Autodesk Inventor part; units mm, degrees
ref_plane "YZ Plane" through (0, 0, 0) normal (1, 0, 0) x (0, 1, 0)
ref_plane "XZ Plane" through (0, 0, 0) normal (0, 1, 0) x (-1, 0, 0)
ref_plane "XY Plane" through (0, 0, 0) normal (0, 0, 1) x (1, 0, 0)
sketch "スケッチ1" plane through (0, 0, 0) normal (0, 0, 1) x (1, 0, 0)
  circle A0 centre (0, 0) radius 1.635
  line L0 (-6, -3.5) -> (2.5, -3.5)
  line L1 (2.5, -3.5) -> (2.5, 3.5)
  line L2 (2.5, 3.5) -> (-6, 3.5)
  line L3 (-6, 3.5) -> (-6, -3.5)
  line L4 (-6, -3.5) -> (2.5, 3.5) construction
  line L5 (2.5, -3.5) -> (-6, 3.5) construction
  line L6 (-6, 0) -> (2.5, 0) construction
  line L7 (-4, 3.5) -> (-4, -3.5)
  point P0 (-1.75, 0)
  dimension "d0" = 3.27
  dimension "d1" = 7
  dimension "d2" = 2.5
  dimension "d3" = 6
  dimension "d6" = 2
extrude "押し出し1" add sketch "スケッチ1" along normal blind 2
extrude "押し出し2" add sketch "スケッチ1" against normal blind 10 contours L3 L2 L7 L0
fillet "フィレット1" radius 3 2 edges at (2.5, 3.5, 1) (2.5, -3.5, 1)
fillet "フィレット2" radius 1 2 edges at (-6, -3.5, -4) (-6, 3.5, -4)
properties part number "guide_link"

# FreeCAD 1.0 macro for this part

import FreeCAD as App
import Part
import Sketcher
from FreeCAD import Vector
Q = App.Units.Quantity


def edges_at(feature, points):
    """Names of the edges that pass closest to the given points."""
    edges = feature.Shape.Edges
    near = lambda p: min(range(len(edges)), key=lambda i: edges[i].distToShape(Part.Vertex(*p))[0])
    return sorted({f"Edge{near(p) + 1}" for p in points})

doc = App.newDocument("Part")
body = doc.addObject("PartDesign::Body", "Body")

sketch1 = body.newObject("Sketcher::SketchObject", "Sketch")
sketch1.AttachmentSupport = (doc.getObject("XY_Plane"), [""])
sketch1.MapMode = "FlatFace"
sketch1.addGeometry(Part.LineSegment(Vector(-6, 3.5, 0), Vector(-6, -3.5, 0)), False)
sketch1.addGeometry(Part.LineSegment(Vector(-6, -3.5, 0), Vector(2.5, -3.5, 0)), False)
sketch1.addGeometry(Part.LineSegment(Vector(2.5, -3.5, 0), Vector(2.5, 3.5, 0)), False)
sketch1.addGeometry(Part.LineSegment(Vector(2.5, 3.5, 0), Vector(-6, 3.5, 0)), False)
sketch1.addGeometry(Part.Circle(Vector(0, 0, 0), Vector(0, 0, 1), 1.6), False)
sketch1.addConstraint(Sketcher.Constraint("Coincident", 0, 2, 1, 1))
sketch1.addConstraint(Sketcher.Constraint("Coincident", 1, 2, 2, 1))
sketch1.addConstraint(Sketcher.Constraint("Coincident", 2, 2, 3, 1))
sketch1.addConstraint(Sketcher.Constraint("Coincident", 3, 2, 0, 1))
sketch1.addConstraint(Sketcher.Constraint("Vertical", 0))
sketch1.addConstraint(Sketcher.Constraint("Horizontal", 1))
sketch1.addConstraint(Sketcher.Constraint("Vertical", 2))
sketch1.addConstraint(Sketcher.Constraint("Horizontal", 3))
sketch1.addConstraint(Sketcher.Constraint("Coincident", 4, 3, -1, 1))
sketch1.addConstraint(Sketcher.Constraint("Diameter", 4, Q("3.27 mm")))
sketch1.addConstraint(Sketcher.Constraint("DistanceY", 0, 2, 0, 1, Q("7 mm")))
sketch1.addConstraint(Sketcher.Constraint("DistanceX", 0, 2, -1, 1, Q("6 mm")))
sketch1.addConstraint(Sketcher.Constraint("DistanceX", -1, 1, 1, 2, Q("2.5 mm")))
sketch1.addConstraint(Sketcher.Constraint("DistanceY", 0, 2, -1, 1, Q("3.5 mm")))
pad1 = body.newObject("PartDesign::Pad", "Pad")
pad1.Profile = sketch1
pad1.Length = 2

sketch2 = body.newObject("Sketcher::SketchObject", "Sketch001")
sketch2.AttachmentSupport = (doc.getObject("XY_Plane"), [""])
sketch2.MapMode = "FlatFace"
sketch2.addGeometry(Part.LineSegment(Vector(-6, 3.5, 0), Vector(-6, -3.5, 0)), False)
sketch2.addGeometry(Part.LineSegment(Vector(-6, -3.5, 0), Vector(-4, -3.5, 0)), False)
sketch2.addGeometry(Part.LineSegment(Vector(-4, -3.5, 0), Vector(-4, 3.5, 0)), False)
sketch2.addGeometry(Part.LineSegment(Vector(-4, 3.5, 0), Vector(-6, 3.5, 0)), False)
sketch2.addConstraint(Sketcher.Constraint("Coincident", 0, 2, 1, 1))
sketch2.addConstraint(Sketcher.Constraint("Coincident", 1, 2, 2, 1))
sketch2.addConstraint(Sketcher.Constraint("Coincident", 2, 2, 3, 1))
sketch2.addConstraint(Sketcher.Constraint("Coincident", 3, 2, 0, 1))
sketch2.addConstraint(Sketcher.Constraint("Vertical", 0))
sketch2.addConstraint(Sketcher.Constraint("Horizontal", 1))
sketch2.addConstraint(Sketcher.Constraint("Vertical", 2))
sketch2.addConstraint(Sketcher.Constraint("Horizontal", 3))
sketch2.addConstraint(Sketcher.Constraint("DistanceX", 1, 1, 1, 2, Q("2 mm")))
sketch2.addConstraint(Sketcher.Constraint("DistanceY", 0, 2, 0, 1, Q("7 mm")))
sketch2.addConstraint(Sketcher.Constraint("DistanceX", 0, 2, -1, 1, Q("6 mm")))
sketch2.addConstraint(Sketcher.Constraint("DistanceY", 0, 2, -1, 1, Q("3.5 mm")))
pad2 = body.newObject("PartDesign::Pad", "Pad001")
pad2.Profile = sketch2
pad2.Length = 10
pad2.Reversed = True
doc.recompute()

fillet = body.newObject("PartDesign::Fillet", "Fillet")
fillet.Base = (pad2, edges_at(pad2, [(2.5, 3.5, 1), (2.5, -3.5, 1)]))
fillet.Radius = 3
doc.recompute()

fillet2 = body.newObject("PartDesign::Fillet", "Fillet001")
fillet2.Base = (fillet, edges_at(fillet, [(-6, -3.5, -4), (-6, 3.5, -4)]))
fillet2.Radius = 1

doc.recompute()
